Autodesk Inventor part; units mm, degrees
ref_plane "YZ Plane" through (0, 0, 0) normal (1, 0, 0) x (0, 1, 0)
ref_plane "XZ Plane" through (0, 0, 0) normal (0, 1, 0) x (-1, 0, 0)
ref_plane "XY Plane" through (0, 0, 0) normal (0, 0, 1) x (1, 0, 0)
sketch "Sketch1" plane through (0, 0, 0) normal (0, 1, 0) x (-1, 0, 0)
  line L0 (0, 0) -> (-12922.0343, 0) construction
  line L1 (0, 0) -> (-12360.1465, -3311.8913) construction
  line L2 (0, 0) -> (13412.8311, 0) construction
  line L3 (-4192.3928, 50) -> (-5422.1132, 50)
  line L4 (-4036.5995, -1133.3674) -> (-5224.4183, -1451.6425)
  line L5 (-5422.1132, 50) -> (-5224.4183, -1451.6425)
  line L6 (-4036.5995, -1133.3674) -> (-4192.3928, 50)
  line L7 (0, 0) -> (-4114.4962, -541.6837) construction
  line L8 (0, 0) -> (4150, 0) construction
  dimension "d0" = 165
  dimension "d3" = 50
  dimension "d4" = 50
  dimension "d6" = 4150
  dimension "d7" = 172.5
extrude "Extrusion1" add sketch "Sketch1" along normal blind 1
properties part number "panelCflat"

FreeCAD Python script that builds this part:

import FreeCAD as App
import Part
import Sketcher
from FreeCAD import Vector
Q = App.Units.Quantity

doc = App.newDocument("Part")
body = doc.addObject("PartDesign::Body", "Body")

# Sketch on XZ plane
sketch1 = body.newObject("Sketcher::SketchObject", "Sketch")
sketch1.AttachmentSupport = (doc.getObject("XZ_Plane"), [""])
sketch1.MapMode = "FlatFace"
sketch1.addGeometry(Part.LineSegment(Vector(4036.5995, -1133.3674, 0), Vector(4192.3928, 50, 0)), False)
sketch1.addGeometry(Part.LineSegment(Vector(4192.3928, 50, 0), Vector(5422.1132, 50, 0)), False)
sketch1.addGeometry(Part.LineSegment(Vector(5422.1132, 50, 0), Vector(5224.4183, -1451.6425, 0)), False)
sketch1.addGeometry(Part.LineSegment(Vector(5224.4183, -1451.6425, 0), Vector(4036.5995, -1133.3674, 0)), False)
sketch1.addConstraint(Sketcher.Constraint("Coincident", 0, 2, 1, 1))
sketch1.addConstraint(Sketcher.Constraint("Coincident", 1, 2, 2, 1))
sketch1.addConstraint(Sketcher.Constraint("Coincident", 2, 2, 3, 1))
sketch1.addConstraint(Sketcher.Constraint("Coincident", 3, 2, 0, 1))
sketch1.addConstraint(Sketcher.Constraint("Horizontal", 1))
sketch1.addConstraint(Sketcher.Constraint("Parallel", 0, 2))
sketch1.addConstraint(Sketcher.Constraint("Angle", 3, Q("165 deg")))
sketch1.addConstraint(Sketcher.Constraint("DistanceY", -1, 1, 0, 2, 50.0))
sketch1.addConstraint(Sketcher.Constraint("Angle", 0, Q("82.5 deg")))
sketch1.addConstraint(Sketcher.Constraint("Distance", 2, 1514.6))
sketch1.addConstraint(Sketcher.Constraint("DistanceX", 1, 1, 1, 2, 1229.7204))
sketch1.addConstraint(Sketcher.Constraint("DistanceX", -1, 1, 0, 2, 4192.3928))
pad1 = body.newObject("PartDesign::Pad", "Pad")
pad1.Profile = sketch1
pad1.Length = 1
pad1.Reversed = True

doc.recompute()
